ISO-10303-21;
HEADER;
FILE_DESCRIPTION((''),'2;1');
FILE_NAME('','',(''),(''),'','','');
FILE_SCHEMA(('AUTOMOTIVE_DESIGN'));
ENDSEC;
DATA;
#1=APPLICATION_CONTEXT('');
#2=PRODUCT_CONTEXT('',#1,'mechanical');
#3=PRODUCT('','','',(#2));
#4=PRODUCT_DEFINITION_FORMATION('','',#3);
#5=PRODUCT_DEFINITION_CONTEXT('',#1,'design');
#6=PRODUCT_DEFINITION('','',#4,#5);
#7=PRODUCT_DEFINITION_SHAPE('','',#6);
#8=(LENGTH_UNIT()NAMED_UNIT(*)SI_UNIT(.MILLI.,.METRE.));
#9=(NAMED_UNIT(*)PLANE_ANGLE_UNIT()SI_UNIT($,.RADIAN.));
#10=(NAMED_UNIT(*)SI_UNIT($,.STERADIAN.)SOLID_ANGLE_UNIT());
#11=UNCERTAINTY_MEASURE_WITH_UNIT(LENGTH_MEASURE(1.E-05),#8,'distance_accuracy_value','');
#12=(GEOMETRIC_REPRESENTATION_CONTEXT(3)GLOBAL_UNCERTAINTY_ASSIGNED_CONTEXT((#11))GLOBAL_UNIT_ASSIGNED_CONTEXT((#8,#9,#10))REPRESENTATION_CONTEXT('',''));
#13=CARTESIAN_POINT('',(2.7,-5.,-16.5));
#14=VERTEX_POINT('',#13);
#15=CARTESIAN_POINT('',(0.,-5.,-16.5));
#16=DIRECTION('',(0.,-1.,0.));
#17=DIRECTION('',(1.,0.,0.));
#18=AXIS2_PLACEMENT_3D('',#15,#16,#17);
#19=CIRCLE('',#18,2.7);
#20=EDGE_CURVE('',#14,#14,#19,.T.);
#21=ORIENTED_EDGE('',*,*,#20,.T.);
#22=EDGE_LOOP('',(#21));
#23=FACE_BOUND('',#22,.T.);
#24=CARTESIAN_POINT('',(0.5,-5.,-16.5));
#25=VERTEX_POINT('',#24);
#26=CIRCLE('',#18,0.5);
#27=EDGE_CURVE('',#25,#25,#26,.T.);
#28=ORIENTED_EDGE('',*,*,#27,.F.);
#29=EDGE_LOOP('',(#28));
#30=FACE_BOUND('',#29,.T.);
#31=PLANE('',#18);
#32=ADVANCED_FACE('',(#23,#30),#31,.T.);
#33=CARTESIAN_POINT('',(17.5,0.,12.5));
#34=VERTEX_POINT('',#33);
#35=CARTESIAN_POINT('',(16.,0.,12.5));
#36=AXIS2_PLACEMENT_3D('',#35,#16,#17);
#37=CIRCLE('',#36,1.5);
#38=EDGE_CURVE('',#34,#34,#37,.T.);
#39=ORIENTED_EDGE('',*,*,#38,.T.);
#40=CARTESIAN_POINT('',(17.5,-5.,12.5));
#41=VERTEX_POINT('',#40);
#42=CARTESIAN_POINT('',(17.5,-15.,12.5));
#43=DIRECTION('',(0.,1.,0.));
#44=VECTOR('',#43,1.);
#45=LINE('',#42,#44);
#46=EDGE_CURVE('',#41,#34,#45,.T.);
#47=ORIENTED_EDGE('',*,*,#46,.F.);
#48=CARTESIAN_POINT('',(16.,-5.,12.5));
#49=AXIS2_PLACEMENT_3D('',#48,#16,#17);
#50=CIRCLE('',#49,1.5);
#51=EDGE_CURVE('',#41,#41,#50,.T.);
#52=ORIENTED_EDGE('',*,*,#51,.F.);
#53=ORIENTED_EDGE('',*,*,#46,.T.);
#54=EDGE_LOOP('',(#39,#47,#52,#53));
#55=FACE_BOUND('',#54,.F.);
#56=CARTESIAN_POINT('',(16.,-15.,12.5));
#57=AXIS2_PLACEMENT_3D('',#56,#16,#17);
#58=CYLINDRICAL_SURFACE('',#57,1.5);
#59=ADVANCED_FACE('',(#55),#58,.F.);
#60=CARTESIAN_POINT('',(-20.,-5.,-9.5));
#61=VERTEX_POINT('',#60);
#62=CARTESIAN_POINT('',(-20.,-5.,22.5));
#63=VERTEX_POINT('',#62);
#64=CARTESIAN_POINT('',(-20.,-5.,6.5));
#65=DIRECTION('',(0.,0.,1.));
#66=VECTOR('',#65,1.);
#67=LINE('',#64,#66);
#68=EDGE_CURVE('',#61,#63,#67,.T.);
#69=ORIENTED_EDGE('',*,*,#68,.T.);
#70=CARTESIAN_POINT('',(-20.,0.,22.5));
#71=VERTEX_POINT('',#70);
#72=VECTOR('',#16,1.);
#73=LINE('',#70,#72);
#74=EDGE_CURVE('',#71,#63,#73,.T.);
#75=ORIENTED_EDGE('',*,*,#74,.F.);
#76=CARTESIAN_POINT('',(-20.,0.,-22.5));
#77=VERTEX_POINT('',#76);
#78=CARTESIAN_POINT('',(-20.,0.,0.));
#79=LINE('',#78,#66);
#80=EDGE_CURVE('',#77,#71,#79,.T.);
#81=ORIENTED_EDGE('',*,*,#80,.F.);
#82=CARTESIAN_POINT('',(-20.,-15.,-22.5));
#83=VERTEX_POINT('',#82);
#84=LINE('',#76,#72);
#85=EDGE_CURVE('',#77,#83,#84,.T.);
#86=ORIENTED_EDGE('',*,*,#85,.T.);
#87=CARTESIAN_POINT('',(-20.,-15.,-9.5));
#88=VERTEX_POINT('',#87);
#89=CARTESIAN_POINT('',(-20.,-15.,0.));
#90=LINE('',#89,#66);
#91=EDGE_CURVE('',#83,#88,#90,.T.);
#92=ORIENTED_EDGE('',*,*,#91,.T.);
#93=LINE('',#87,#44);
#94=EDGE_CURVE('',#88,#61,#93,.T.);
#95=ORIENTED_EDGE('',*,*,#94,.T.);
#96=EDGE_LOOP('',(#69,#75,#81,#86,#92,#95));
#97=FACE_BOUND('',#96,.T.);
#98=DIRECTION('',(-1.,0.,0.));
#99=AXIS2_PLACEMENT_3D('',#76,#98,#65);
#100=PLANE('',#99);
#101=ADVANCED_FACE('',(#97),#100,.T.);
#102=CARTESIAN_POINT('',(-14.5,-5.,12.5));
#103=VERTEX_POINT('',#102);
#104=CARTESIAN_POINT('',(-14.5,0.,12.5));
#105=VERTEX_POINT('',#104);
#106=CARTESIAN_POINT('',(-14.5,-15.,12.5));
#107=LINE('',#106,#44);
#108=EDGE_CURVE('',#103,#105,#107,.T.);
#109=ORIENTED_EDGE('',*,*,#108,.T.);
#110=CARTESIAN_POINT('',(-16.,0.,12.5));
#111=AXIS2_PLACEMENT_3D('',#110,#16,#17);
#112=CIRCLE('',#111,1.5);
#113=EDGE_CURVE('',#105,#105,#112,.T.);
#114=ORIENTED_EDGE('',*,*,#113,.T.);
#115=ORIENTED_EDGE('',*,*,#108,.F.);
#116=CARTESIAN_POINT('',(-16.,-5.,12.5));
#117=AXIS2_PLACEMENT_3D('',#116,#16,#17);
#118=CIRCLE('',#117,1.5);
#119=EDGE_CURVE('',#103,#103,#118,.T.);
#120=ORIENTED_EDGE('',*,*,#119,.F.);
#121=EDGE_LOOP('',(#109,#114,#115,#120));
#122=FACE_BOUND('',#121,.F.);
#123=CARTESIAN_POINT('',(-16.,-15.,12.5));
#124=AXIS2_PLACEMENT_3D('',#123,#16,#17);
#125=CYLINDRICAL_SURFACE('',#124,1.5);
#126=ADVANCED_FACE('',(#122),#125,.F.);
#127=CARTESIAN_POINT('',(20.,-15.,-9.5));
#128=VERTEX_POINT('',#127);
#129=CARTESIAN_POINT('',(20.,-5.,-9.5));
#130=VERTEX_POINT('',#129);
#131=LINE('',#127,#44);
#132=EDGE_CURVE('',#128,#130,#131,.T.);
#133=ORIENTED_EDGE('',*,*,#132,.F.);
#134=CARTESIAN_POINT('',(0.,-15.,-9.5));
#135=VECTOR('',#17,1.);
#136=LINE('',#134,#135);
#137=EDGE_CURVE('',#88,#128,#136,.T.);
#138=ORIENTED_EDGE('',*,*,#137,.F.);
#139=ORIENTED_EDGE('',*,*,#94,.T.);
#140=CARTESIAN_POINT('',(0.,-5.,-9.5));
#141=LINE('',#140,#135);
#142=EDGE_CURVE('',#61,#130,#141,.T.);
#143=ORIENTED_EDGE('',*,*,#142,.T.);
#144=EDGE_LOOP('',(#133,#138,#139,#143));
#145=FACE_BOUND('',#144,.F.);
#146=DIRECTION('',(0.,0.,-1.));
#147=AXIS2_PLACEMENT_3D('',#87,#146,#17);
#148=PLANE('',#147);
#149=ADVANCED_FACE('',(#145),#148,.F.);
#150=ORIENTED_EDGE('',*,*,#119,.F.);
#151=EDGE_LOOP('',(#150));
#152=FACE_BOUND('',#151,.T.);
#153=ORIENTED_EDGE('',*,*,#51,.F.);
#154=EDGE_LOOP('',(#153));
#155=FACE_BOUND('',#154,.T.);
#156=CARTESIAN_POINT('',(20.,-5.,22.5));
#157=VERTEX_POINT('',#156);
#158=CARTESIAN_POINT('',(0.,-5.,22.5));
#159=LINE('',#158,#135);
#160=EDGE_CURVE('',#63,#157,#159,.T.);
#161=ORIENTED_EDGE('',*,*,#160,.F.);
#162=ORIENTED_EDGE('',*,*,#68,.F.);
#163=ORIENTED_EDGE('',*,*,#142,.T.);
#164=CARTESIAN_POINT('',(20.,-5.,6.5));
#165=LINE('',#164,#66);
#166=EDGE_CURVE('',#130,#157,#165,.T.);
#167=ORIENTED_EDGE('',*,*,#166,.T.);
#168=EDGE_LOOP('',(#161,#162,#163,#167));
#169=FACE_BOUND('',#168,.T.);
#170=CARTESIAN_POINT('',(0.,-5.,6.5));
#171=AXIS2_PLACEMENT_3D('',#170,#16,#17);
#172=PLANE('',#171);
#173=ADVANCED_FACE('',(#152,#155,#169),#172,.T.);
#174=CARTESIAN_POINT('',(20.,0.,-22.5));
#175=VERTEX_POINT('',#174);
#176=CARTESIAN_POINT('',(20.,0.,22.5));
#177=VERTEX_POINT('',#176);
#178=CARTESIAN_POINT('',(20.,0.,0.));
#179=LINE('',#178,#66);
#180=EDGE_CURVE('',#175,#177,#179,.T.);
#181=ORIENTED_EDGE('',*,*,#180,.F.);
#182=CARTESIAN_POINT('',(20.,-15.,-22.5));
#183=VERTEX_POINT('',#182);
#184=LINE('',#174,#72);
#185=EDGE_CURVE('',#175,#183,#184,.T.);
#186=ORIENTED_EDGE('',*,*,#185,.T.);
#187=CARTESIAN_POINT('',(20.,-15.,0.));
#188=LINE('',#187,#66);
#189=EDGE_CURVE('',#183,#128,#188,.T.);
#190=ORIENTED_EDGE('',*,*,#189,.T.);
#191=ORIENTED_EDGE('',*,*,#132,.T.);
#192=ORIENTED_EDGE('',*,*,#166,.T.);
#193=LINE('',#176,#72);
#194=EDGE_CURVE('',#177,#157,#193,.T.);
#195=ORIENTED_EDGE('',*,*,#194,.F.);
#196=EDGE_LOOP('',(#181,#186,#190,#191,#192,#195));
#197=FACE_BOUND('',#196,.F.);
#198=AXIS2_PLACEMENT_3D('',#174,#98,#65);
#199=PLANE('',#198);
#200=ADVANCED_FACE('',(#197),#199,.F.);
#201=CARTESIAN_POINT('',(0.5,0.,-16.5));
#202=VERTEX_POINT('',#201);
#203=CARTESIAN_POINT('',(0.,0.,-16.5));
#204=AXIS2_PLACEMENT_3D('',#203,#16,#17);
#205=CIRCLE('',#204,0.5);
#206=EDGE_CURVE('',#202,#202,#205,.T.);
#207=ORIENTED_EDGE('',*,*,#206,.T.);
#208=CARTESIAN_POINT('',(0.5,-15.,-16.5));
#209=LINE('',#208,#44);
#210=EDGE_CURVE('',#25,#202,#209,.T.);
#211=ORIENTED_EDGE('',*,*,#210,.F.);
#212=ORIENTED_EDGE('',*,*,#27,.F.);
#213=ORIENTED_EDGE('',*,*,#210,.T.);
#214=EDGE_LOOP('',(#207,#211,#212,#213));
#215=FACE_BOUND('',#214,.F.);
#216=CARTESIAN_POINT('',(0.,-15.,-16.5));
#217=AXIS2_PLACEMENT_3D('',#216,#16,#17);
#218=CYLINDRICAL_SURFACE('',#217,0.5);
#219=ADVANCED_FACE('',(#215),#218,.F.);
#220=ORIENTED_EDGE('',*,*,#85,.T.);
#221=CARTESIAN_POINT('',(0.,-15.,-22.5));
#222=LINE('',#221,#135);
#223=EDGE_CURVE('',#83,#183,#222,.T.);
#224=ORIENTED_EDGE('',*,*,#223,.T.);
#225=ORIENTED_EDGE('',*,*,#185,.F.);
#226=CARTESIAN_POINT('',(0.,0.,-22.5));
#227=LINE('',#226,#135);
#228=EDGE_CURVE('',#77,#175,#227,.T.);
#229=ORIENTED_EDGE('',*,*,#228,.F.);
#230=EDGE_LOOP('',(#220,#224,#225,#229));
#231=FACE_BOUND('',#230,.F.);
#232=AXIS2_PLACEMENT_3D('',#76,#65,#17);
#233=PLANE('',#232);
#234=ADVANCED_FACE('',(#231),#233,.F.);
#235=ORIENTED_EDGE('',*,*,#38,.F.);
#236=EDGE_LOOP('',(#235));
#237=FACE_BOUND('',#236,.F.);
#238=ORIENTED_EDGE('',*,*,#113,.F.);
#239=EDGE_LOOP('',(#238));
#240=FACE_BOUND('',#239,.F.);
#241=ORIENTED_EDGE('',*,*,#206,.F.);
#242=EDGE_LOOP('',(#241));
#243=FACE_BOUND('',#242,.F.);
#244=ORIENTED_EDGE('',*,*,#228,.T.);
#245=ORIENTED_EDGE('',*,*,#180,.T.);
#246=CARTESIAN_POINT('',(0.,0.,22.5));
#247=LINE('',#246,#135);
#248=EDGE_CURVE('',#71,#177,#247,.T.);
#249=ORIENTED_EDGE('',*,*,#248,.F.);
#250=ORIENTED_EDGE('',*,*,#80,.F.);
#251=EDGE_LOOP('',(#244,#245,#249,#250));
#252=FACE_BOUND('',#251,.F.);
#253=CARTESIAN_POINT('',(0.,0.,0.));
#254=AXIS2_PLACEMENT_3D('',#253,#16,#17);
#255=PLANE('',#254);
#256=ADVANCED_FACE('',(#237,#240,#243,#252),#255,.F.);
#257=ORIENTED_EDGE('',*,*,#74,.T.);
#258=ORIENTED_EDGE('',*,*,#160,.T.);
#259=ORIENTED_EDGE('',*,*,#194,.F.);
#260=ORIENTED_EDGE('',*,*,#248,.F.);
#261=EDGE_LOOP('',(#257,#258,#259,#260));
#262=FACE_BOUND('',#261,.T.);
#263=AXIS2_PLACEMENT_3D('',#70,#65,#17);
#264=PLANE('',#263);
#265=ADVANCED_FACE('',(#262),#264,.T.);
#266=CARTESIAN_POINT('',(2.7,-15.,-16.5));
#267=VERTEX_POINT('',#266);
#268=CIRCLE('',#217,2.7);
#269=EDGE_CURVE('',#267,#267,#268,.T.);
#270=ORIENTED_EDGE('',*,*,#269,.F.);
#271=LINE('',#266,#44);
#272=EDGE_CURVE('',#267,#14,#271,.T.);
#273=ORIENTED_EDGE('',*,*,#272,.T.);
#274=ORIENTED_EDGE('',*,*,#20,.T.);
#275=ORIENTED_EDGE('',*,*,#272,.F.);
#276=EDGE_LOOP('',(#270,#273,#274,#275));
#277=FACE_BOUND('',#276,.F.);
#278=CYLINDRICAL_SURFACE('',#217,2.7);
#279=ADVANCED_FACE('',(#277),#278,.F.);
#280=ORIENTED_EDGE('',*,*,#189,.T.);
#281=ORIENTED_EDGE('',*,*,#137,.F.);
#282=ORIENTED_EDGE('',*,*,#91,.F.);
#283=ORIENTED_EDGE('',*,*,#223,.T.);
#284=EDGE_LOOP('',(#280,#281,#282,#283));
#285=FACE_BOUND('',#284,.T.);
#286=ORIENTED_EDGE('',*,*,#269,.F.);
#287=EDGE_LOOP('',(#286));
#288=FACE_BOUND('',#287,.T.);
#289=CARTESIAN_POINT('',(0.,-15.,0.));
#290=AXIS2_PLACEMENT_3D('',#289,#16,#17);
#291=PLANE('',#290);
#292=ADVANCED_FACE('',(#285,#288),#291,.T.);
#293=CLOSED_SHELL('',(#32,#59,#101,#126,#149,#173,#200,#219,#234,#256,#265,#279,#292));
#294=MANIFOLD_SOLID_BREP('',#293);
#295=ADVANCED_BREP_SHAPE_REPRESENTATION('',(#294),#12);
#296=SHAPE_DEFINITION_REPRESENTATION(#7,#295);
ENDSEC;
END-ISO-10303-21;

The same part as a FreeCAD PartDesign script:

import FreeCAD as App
import Part
import Sketcher

V = App.Vector
Q = App.Units.Quantity


def add_polygon(sketch, points):
    """Adds a closed chain of lines whose ends are joined by coincident constraints."""
    first, n = sketch.GeometryCount, len(points)
    for a, b in zip(points, points[1:] + points[:1]):
        sketch.addGeometry(Part.LineSegment(App.Vector(*a, 0), App.Vector(*b, 0)), False)
    for i in range(n):
        sketch.addConstraint(Sketcher.Constraint("Coincident", first + i, 2, first + (i + 1) % n, 1))

doc = App.newDocument("Part")
params = doc.addObject("Spreadsheet::Sheet", "Params")
for row, (alias, value) in enumerate([
    ("sketch1_width", "40 mm"),
    ("sketch1_height", "45 mm"),
    ("pad1_length", "15 mm"),
    ("sketch2_diameter", "3 mm"),
    ("pocket1_length", "25 mm"),
    ("sketch3_diameter", "5.4 mm"),
    ("pocket2_length", "10 mm"),
    ("sketch4_width", "40 mm"),
    ("sketch4_height", "32 mm"),
    ("pocket3_length", "10 mm"),
    ("sketch5_diameter", "1 mm"),
    ("pocket4_length", "15 mm"),
], start=1):
    params.set(f"A{row}", alias)
    params.set(f"B{row}", "=" + value)
    params.setAlias(f"B{row}", alias)

body = doc.addObject("PartDesign::Body", "Body")

# Sketch on XZ plane
sketch1 = body.newObject("Sketcher::SketchObject", "Sketch")
sketch1.AttachmentSupport = (doc.getObject("XZ_Plane"), [""])
sketch1.MapMode = "FlatFace"
add_polygon(sketch1, [(-20, 22), (-20, -22), (20, -22), (20, 22)])  # lines 0-3
sketch1.addConstraint([
    Sketcher.Constraint("Vertical", 0),
    Sketcher.Constraint("Horizontal", 1),
    Sketcher.Constraint("Vertical", 2),
    Sketcher.Constraint("Horizontal", 3),
    Sketcher.Constraint("Symmetric", 0, 2, 2, 2, -1, 1),
    Sketcher.Constraint("DistanceX", 1, 1, 1, 2, Q("40 mm")),
    Sketcher.Constraint("DistanceY", 0, 2, 0, 1, Q("45 mm")),
])
sketch1.setExpression("Constraints[9]", "Params.sketch1_width")
sketch1.setExpression("Constraints[10]", "Params.sketch1_height")
pad1 = body.newObject("PartDesign::Pad", "Pad")
pad1.Profile = sketch1
pad1.setExpression("Length", "Params.pad1_length")

# Sketch on XZ plane
sketch2 = body.newObject("Sketcher::SketchObject", "Sketch001")
sketch2.AttachmentSupport = (doc.getObject("XZ_Plane"), [""])
sketch2.MapMode = "FlatFace"
sketch2.AttachmentOffset = App.Placement(V(0, 0, 15), App.Rotation())
sketch2.addGeometry([
    Part.Circle(V(16, 12.5, 0), V(0, 0, 1), 1.5),
    Part.Circle(V(-16, 12.5, 0), V(0, 0, 1), 1.5),
], False)
sketch2.addConstraint([
    Sketcher.Constraint("Equal", 0, 1),
    Sketcher.Constraint("Symmetric", 0, 3, 1, 3, -2),
    Sketcher.Constraint("Diameter", 0, Q("3 mm")),
    Sketcher.Constraint("DistanceX", -1, 1, 0, 3, Q("16 mm")),
    Sketcher.Constraint("DistanceY", -1, 1, 0, 3, Q("12.5 mm")),
])
sketch2.setExpression("Constraints[2]", "Params.sketch2_diameter")
pocket1 = body.newObject("PartDesign::Pocket", "Pocket")
pocket1.Profile = sketch2
pocket1.setExpression("Length", "Params.pocket1_length")

# Sketch on XZ plane
sketch3 = body.newObject("Sketcher::SketchObject", "Sketch002")
sketch3.AttachmentSupport = (doc.getObject("XZ_Plane"), [""])
sketch3.MapMode = "FlatFace"
sketch3.AttachmentOffset = App.Placement(V(0, 0, 15), App.Rotation())
sketch3.addGeometry(Part.Circle(V(0, -16.5, 0), V(0, 0, 1), 2.7), False)
sketch3.addConstraint([
    Sketcher.Constraint("PointOnObject", 0, 3, -2),
    Sketcher.Constraint("Diameter", 0, Q("5.4 mm")),
    Sketcher.Constraint("DistanceY", 0, 3, -1, 1, Q("16.5 mm")),
])
sketch3.setExpression("Constraints[1]", "Params.sketch3_diameter")
pocket2 = body.newObject("PartDesign::Pocket", "Pocket001")
pocket2.Profile = sketch3
pocket2.setExpression("Length", "Params.pocket2_length")

# Sketch on XZ plane
sketch4 = body.newObject("Sketcher::SketchObject", "Sketch003")
sketch4.AttachmentSupport = (doc.getObject("XZ_Plane"), [""])
sketch4.MapMode = "FlatFace"
sketch4.AttachmentOffset = App.Placement(V(0, 0, 15), App.Rotation())
add_polygon(sketch4, [(-20, 22), (-20, -10), (20, -10), (20, 22)])  # lines 0-3
sketch4.addConstraint([
    Sketcher.Constraint("Vertical", 0),
    Sketcher.Constraint("Horizontal", 1),
    Sketcher.Constraint("Vertical", 2),
    Sketcher.Constraint("Horizontal", 3),
    Sketcher.Constraint("DistanceX", 1, 1, 1, 2, Q("40 mm")),
    Sketcher.Constraint("DistanceY", 0, 2, 0, 1, Q("32 mm")),
    Sketcher.Constraint("DistanceX", 0, 2, -1, 1, Q("20 mm")),
    Sketcher.Constraint("DistanceY", 0, 2, -1, 1, Q("9.5 mm")),
])
sketch4.setExpression("Constraints[8]", "Params.sketch4_width")
sketch4.setExpression("Constraints[9]", "Params.sketch4_height")
pocket3 = body.newObject("PartDesign::Pocket", "Pocket002")
pocket3.Profile = sketch4
pocket3.setExpression("Length", "Params.pocket3_length")

# Sketch on XZ plane
sketch5 = body.newObject("Sketcher::SketchObject", "Sketch004")
sketch5.AttachmentSupport = (doc.getObject("XZ_Plane"), [""])
sketch5.MapMode = "FlatFace"
sketch5.AttachmentOffset = App.Placement(V(0, 0, 15), App.Rotation())
sketch5.addGeometry(Part.Circle(V(0, -16.5, 0), V(0, 0, 1), 0.5), False)
sketch5.addConstraint([
    Sketcher.Constraint("PointOnObject", 0, 3, -2),
    Sketcher.Constraint("Diameter", 0, Q("1 mm")),
    Sketcher.Constraint("DistanceY", 0, 3, -1, 1, Q("16.5 mm")),
])
sketch5.setExpression("Constraints[1]", "Params.sketch5_diameter")
pocket4 = body.newObject("PartDesign::Pocket", "Pocket003")
pocket4.Profile = sketch5
pocket4.setExpression("Length", "Params.pocket4_length")

doc.recompute()
